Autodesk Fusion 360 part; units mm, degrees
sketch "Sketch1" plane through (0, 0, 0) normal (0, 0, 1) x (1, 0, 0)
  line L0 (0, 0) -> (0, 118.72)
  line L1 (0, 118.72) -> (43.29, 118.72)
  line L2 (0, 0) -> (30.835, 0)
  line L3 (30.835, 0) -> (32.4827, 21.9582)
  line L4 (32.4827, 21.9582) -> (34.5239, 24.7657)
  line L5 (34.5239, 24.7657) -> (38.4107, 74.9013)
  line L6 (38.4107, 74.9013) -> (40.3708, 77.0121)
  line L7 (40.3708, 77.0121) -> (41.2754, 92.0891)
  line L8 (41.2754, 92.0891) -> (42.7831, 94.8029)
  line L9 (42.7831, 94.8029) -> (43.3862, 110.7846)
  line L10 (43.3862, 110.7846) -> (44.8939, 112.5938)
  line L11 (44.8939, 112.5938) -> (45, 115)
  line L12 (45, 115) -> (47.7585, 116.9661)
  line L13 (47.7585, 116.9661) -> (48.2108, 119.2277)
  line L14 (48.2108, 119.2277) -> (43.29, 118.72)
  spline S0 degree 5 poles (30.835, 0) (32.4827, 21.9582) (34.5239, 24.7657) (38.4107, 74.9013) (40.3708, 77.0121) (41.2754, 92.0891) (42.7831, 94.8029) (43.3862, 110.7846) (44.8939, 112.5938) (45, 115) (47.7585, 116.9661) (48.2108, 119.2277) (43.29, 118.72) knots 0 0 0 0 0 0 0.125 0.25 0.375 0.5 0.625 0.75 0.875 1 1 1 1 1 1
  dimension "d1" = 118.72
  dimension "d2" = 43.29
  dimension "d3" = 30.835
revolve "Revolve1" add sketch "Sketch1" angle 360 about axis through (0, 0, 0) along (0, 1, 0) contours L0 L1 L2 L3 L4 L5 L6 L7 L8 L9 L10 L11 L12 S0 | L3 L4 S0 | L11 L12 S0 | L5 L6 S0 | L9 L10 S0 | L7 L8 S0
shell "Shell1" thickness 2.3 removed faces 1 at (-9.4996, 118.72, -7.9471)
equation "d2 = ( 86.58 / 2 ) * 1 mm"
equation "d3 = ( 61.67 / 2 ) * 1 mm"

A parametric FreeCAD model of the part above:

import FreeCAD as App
import Part
import Sketcher

V = App.Vector


def faces_at(feature, points):
    """Names of the faces that lie closest to the given points."""
    faces = feature.Shape.Faces
    near = lambda p: min(range(len(faces)), key=lambda i: faces[i].distToShape(Part.Vertex(*p))[0])
    return sorted({f"Face{near(p) + 1}" for p in points})

doc = App.newDocument("Part")
body = doc.addObject("PartDesign::Body", "Body")

# Sketch on XY plane
sketch1 = doc.addObject("Sketcher::SketchObject", "Sketch")
body.addObject(sketch1)
sketch1.AttachmentSupport = (doc.XY_Plane, [""])
sketch1.MapMode = "FlatFace"
sketch1.addGeometry([
    Part.LineSegment(V(0, 118.72, 0), V(0, 0, 0)),  # 0
    Part.LineSegment(V(0, 0, 0), V(30.835, 0, 0)),  # 1
    Part.BSplineCurve([V(30.835, 0, 0), V(31.412623, 7.697744, 0), V(31.91318, 12.869453, 0), V(32.369609, 16.730418, 0), V(32.800239, 19.971356, 0), V(33.214612, 22.964884, 0)], [6, 6], [0, 0.043820438], False, 5, [1, 1, 1, 1, 1, 1], False),  # 2
    Part.BSplineCurve([V(33.214612, 22.964884, 0), V(33.890769, 27.849607, 0), V(34.523639, 32.075567, 0), V(35.154679, 37.261717, 0), V(35.763069, 42.771804, 0), V(36.333145, 48.103049, 0)], [6, 6], [0.043820438, 0.115324937], False, 5, [1, 1, 1, 1, 1, 1], False),  # 3
    Part.BSplineCurve([V(36.333145, 48.103049, 0), V(36.410281, 48.824404, 0), V(37.282811, 57.021648, 0), V(38.058874, 64.62991, 0), V(38.683319, 69.862964, 0), V(39.182286, 73.533964, 0), V(39.559104, 76.137997, 0)], [6, 1, 6], [0.115324937, 0.125, 0.225770526], False, 5, [1, 1, 1, 1, 1, 1, 1], False),  # 4
    Part.BSplineCurve([V(39.559104, 76.137997, 0), V(39.649706, 76.764117, 0), V(39.995025, 79.103309, 0), V(40.273166, 80.873011, 0), V(40.50882, 82.557945, 0), V(40.721565, 84.200415, 0), V(40.873913, 85.397506, 0)], [6, 1, 6], [0.225770526, 0.25, 0.322982895], False, 5, [1, 1, 1, 1, 1, 1, 1], False),  # 5
    Part.BSplineCurve([V(40.873913, 85.397506, 0), V(40.982497, 86.250708, 0), V(41.209255, 88.056559, 0), V(41.427883, 89.756395, 0), V(41.651521, 91.227731, 0), V(41.873311, 92.62391, 0), V(41.990831, 93.376847, 0)], [6, 1, 6], [0.322982895, 0.375, 0.435491863], False, 5, [1, 1, 1, 1, 1, 1, 1], False),  # 6
    Part.BSplineCurve([V(41.990831, 93.376847, 0), V(42.116153, 94.179775, 0), V(42.358164, 95.760077, 0), V(42.587032, 97.462269, 0), V(42.790561, 99.507579, 0), V(42.985598, 101.652513, 0), V(43.080985, 102.696624, 0)], [6, 1, 6], [0.435491863, 0.5, 0.562049289], False, 5, [1, 1, 1, 1, 1, 1, 1], False),  # 7
    Part.BSplineCurve([V(43.080985, 102.696624, 0), V(43.177757, 103.755903, 0), V(43.420748, 106.402954, 0), V(43.674126, 108.792736, 0), V(43.964865, 110.354269, 0), V(44.23193, 111.438059, 0), V(44.389054, 111.987998, 0)], [6, 1, 6], [0.562049289, 0.625, 0.72051585], False, 5, [1, 1, 1, 1, 1, 1, 1], False),  # 8
    Part.BSplineCurve([V(44.389054, 111.987998, 0), V(44.437555, 112.157755, 0), V(44.542454, 112.506247, 0), V(44.646274, 112.817799, 0), V(44.752165, 113.113185, 0), V(44.868866, 113.40375, 0), V(44.936543, 113.560888, 0)], [6, 1, 6], [0.72051585, 0.75, 0.784769598], False, 5, [1, 1, 1, 1, 1, 1, 1], False),  # 9
    Part.BSplineCurve([V(44.936543, 113.560888, 0), V(45.112171, 113.968676, 0), V(45.348122, 114.434774, 0), V(45.655189, 114.930193, 0), V(46.067422, 115.456756, 0), V(46.515284, 116.045174, 0), V(46.572277, 116.120629, 0)], [6, 1, 6], [0.784769598, 0.875, 0.888064293], False, 5, [1, 1, 1, 1, 1, 1, 1], False),  # 10
    Part.BSplineCurve([V(46.572277, 116.120629, 0), V(47.060599, 116.767124, 0), V(47.57459, 117.489485, 0), V(47.9757, 118.315372, 0), V(47.696506, 119.174638, 0), V(43.29, 118.72, 0)], [6, 6], [0.888064293, 1], False, 5, [1, 1, 1, 1, 1, 1], False),  # 11
    Part.LineSegment(V(43.29, 118.72, 0), V(0, 118.72, 0)),  # 12
], False)
sketch1.addConstraint([
    Sketcher.Constraint("Block", 2),
    Sketcher.Constraint("Block", 3),
    Sketcher.Constraint("Block", 4),
    Sketcher.Constraint("Block", 5),
    Sketcher.Constraint("Block", 6),
    Sketcher.Constraint("Block", 7),
    Sketcher.Constraint("Block", 8),
    Sketcher.Constraint("Block", 9),
    Sketcher.Constraint("Block", 10),
    Sketcher.Constraint("Block", 11),
    Sketcher.Constraint("Coincident", 0, 2, 1, 1),
    Sketcher.Constraint("Coincident", 1, 2, 2, 1),
    Sketcher.Constraint("Coincident", 11, 2, 12, 1),
    Sketcher.Constraint("Coincident", 12, 2, 0, 1),
    Sketcher.Constraint("Vertical", 0),
    Sketcher.Constraint("Horizontal", 1),
    Sketcher.Constraint("Horizontal", 12),
    Sketcher.Constraint("PointOnObject", 12, 2, -2),
])
revolution = doc.addObject("PartDesign::Revolution", "Revolution")
body.addObject(revolution)
revolution.Profile = sketch1
revolution.ReferenceAxis = (sketch1, ["V_Axis"])
revolution.Angle = 360
doc.recompute()

thickness = doc.addObject("PartDesign::Thickness", "Thickness")
body.addObject(thickness)
thickness.Base = (revolution, faces_at(revolution, [(-9.5, 118.72, -7.947)]))
thickness.Value = 2.3
thickness.Reversed = True
thickness.Join = "Intersection"

doc.recompute()
